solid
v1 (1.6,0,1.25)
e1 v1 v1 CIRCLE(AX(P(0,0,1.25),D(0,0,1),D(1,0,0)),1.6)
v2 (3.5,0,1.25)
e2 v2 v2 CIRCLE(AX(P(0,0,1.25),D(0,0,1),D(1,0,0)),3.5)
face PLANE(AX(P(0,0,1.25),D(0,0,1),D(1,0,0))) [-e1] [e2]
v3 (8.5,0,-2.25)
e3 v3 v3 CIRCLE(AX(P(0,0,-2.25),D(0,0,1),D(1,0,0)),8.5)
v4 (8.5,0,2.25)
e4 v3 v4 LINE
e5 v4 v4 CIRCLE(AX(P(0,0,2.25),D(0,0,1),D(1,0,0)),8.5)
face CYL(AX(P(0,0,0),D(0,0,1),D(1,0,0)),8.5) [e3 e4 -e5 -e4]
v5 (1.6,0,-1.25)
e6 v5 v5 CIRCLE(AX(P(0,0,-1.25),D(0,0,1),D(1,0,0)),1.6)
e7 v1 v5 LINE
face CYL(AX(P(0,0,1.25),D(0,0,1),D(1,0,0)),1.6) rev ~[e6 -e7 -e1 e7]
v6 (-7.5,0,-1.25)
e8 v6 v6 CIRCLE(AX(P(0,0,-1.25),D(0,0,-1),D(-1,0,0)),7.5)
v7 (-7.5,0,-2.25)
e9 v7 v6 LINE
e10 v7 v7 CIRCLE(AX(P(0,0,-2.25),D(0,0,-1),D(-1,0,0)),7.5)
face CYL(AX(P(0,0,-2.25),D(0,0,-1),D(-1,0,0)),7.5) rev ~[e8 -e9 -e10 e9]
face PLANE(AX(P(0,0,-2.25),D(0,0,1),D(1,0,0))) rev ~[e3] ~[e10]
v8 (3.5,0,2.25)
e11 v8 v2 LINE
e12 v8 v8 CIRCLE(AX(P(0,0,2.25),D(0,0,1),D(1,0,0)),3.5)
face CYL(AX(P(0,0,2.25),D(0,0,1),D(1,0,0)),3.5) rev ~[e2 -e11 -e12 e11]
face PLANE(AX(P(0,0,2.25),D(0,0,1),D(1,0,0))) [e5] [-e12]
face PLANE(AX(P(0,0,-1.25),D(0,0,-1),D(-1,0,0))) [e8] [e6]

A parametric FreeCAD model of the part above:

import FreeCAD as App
import Part
import Sketcher
Q = App.Units.Quantity

doc = App.newDocument("Part")
body = doc.addObject("PartDesign::Body", "Body")

# Sketch on XY plane
sketch1 = body.newObject("Sketcher::SketchObject", "Sketch")
sketch1.AttachmentSupport = (doc.getObject("XY_Plane"), [""])
sketch1.MapMode = "FlatFace"
sketch1.addGeometry(Part.Circle(App.Vector(0, 0, 0), App.Vector(0, 0, 1), 8), False)
sketch1.addConstraint([
    Sketcher.Constraint("Coincident", 0, 3, -1, 1),
    Sketcher.Constraint("Diameter", 0, Q("17 mm")),
])
pad1 = body.newObject("PartDesign::Pad", "Pad")
pad1.Profile = sketch1
pad1.Length = 4.5
pad1.Midplane = True

# Sketch on XY plane
sketch2 = body.newObject("Sketcher::SketchObject", "Sketch001")
sketch2.AttachmentSupport = (doc.getObject("XY_Plane"), [""])
sketch2.MapMode = "FlatFace"
sketch2.AttachmentOffset = App.Placement(App.Vector(0, 0, -2.25), App.Rotation())
sketch2.addGeometry(Part.Circle(App.Vector(0, 0, 0), App.Vector(0, 0, 1), 8), False)
sketch2.addConstraint([
    Sketcher.Constraint("Coincident", 0, 3, -1, 1),
    Sketcher.Constraint("Diameter", 0, Q("15 mm")),
])
pocket1 = body.newObject("PartDesign::Pocket", "Pocket")
pocket1.Profile = sketch2
pocket1.Length = 1
pocket1.Reversed = True

# Sketch on XY plane
sketch3 = body.newObject("Sketcher::SketchObject", "Sketch002")
sketch3.AttachmentSupport = (doc.getObject("XY_Plane"), [""])
sketch3.MapMode = "FlatFace"
sketch3.AttachmentOffset = App.Placement(App.Vector(0, 0, 2.25), App.Rotation())
sketch3.addGeometry(Part.Circle(App.Vector(0, 0, 0), App.Vector(0, 0, 1), 3.5), False)
sketch3.addConstraint([
    Sketcher.Constraint("Coincident", 0, 3, -1, 1),
    Sketcher.Constraint("Diameter", 0, Q("7 mm")),
])
pocket2 = body.newObject("PartDesign::Pocket", "Pocket001")
pocket2.Profile = sketch3
pocket2.Length = 1

# Sketch on XY plane
sketch4 = body.newObject("Sketcher::SketchObject", "Sketch003")
sketch4.AttachmentSupport = (doc.getObject("XY_Plane"), [""])
sketch4.MapMode = "FlatFace"
sketch4.AttachmentOffset = App.Placement(App.Vector(0, 0, 1.25), App.Rotation())
sketch4.addGeometry(Part.Circle(App.Vector(0, 0, 0), App.Vector(0, 0, 1), 1.6), False)
sketch4.addConstraint([
    Sketcher.Constraint("Coincident", 0, 3, -1, 1),
    Sketcher.Constraint("Diameter", 0, Q("3.2 mm")),
])
pocket3 = body.newObject("PartDesign::Pocket", "Pocket002")
pocket3.Profile = sketch4
pocket3.Length = 2.5

doc.recompute()
